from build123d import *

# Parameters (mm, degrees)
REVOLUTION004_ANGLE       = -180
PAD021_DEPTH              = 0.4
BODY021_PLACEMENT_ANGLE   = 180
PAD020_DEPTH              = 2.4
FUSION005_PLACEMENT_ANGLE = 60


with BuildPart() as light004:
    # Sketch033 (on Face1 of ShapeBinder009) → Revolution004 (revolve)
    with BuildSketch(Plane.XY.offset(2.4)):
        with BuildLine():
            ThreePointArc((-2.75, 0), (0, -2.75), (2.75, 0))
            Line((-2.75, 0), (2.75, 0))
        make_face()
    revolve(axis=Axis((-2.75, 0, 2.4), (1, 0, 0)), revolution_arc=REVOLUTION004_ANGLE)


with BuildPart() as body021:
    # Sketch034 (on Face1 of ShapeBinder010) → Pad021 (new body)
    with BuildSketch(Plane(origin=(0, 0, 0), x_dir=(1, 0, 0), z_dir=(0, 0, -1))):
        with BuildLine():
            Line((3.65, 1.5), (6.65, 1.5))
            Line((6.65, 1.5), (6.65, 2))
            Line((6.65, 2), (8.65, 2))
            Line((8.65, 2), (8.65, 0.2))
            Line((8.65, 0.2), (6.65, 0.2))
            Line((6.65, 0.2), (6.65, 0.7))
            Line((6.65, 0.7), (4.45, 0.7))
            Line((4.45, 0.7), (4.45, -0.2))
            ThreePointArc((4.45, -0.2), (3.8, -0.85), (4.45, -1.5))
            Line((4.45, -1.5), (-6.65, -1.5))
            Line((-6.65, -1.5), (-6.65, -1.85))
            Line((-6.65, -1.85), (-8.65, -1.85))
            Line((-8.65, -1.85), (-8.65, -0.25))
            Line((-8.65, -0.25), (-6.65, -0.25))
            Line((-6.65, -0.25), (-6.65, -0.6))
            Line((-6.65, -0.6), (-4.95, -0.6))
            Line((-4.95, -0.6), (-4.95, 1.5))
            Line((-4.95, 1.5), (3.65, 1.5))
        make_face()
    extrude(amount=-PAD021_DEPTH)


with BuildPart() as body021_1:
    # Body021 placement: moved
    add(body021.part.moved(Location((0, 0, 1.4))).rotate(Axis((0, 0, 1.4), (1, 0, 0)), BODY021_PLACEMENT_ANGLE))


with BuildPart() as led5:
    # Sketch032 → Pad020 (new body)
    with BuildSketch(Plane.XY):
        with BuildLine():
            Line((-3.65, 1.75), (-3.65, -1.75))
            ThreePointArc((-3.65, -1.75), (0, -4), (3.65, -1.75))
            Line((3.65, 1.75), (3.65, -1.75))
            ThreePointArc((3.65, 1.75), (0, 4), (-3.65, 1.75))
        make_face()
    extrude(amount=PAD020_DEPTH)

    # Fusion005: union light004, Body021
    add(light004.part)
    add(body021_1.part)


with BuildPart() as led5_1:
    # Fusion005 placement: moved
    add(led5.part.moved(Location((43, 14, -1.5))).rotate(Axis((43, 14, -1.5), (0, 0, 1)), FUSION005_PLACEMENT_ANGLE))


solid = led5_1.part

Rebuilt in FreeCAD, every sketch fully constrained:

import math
import FreeCAD as App
import Part
import Sketcher
from FreeCAD import Vector
Q = App.Units.Quantity

doc = App.newDocument("Part")
body = doc.addObject("PartDesign::Body", "Body")

# Sketch on XY plane
sketch1 = body.newObject("Sketcher::SketchObject", "Sketch")
sketch1.AttachmentSupport = (doc.getObject("XY_Plane"), [""])
sketch1.MapMode = "FlatFace"
sketch1.AttachmentOffset = App.Placement(Vector(0, 0, 2.4), App.Rotation())
sketch1.addGeometry([
    Part.ArcOfCircle(Part.Circle(Vector(0, 0, 0), Vector(0, 0, 1), 2.8), math.radians(180), math.radians(360)),
    Part.LineSegment(Vector(2.8, 0, 0), Vector(-2.8, 0, 0)),
], False)
sketch1.addConstraint([
    Sketcher.Constraint("Coincident", 0, 1, 1, 2),
    Sketcher.Constraint("Coincident", 1, 1, 0, 2),
    Sketcher.Constraint("Horizontal", 1),
    Sketcher.Constraint("Coincident", 0, 3, -1, 1),
    Sketcher.Constraint("PointOnObject", 0, 1, -1),
    Sketcher.Constraint("Radius", 0, Q("2.75 mm")),
])
revolution = body.newObject("PartDesign::Revolution", "Revolution")
revolution.Profile = sketch1
revolution.ReferenceAxis = (sketch1, ["H_Axis"])
revolution.Angle = 180
revolution.Reversed = True
body2 = doc.addObject("PartDesign::Body", "Body001")

# Sketch on XY plane
sketch2 = body2.newObject("Sketcher::SketchObject", "Sketch001")
sketch2.AttachmentSupport = (doc.getObject("XY_Plane001"), [""])
sketch2.MapMode = "FlatFace"
sketch2.addGeometry([
    Part.LineSegment(Vector(6.65, -2, 0), Vector(6.65, -1.5, 0)),  # 0
    Part.LineSegment(Vector(6.65, -1.5, 0), Vector(-4.95, -1.5, 0)),  # 1
    Part.LineSegment(Vector(-4.95, -1.5, 0), Vector(-4.95, 0.6, 0)),  # 2
    Part.LineSegment(Vector(-4.95, 0.6, 0), Vector(-6.65, 0.6, 0)),  # 3
    Part.LineSegment(Vector(-6.65, 0.6, 0), Vector(-6.65, 0.25, 0)),  # 4
    Part.LineSegment(Vector(-6.65, 0.25, 0), Vector(-8.65, 0.25, 0)),  # 5
    Part.LineSegment(Vector(-8.65, 0.25, 0), Vector(-8.65, 1.85, 0)),  # 6
    Part.LineSegment(Vector(-8.65, 1.85, 0), Vector(-6.65, 1.85, 0)),  # 7
    Part.LineSegment(Vector(-6.65, 1.85, 0), Vector(-6.65, 1.5, 0)),  # 8
    Part.LineSegment(Vector(-6.65, 1.5, 0), Vector(4.45, 1.5, 0)),  # 9
    Part.ArcOfCircle(Part.Circle(Vector(4.45, 0.85, 0), Vector(0, 0, 1), 0.65), math.radians(90), math.radians(270)),  # 10
    Part.LineSegment(Vector(4.45, 0.2, 0), Vector(4.45, -0.7, 0)),  # 11
    Part.LineSegment(Vector(4.45, -0.7, 0), Vector(6.65, -0.7, 0)),  # 12
    Part.LineSegment(Vector(6.65, -0.7, 0), Vector(6.65, -0.2, 0)),  # 13
    Part.LineSegment(Vector(6.65, -0.2, 0), Vector(8.65, -0.2, 0)),  # 14
    Part.LineSegment(Vector(8.65, -0.2, 0), Vector(8.65, -2, 0)),  # 15
    Part.LineSegment(Vector(8.65, -2, 0), Vector(6.65, -2, 0)),  # 16
], False)
sketch2.addConstraint([
    Sketcher.Constraint("Coincident", 0, 2, 1, 1),
    Sketcher.Constraint("Coincident", 1, 2, 2, 1),
    Sketcher.Constraint("Coincident", 2, 2, 3, 1),
    Sketcher.Constraint("Coincident", 3, 2, 4, 1),
    Sketcher.Constraint("Coincident", 4, 2, 5, 1),
    Sketcher.Constraint("Coincident", 5, 2, 6, 1),
    Sketcher.Constraint("Coincident", 6, 2, 7, 1),
    Sketcher.Constraint("Coincident", 7, 2, 8, 1),
    Sketcher.Constraint("Coincident", 8, 2, 9, 1),
    Sketcher.Constraint("Tangent", 9, 2, 10, 1),
    Sketcher.Constraint("Coincident", 10, 2, 11, 1),
    Sketcher.Constraint("Coincident", 11, 2, 12, 1),
    Sketcher.Constraint("Coincident", 12, 2, 13, 1),
    Sketcher.Constraint("Coincident", 13, 2, 14, 1),
    Sketcher.Constraint("Coincident", 14, 2, 15, 1),
    Sketcher.Constraint("Coincident", 15, 2, 16, 1),
    Sketcher.Constraint("Coincident", 16, 2, 0, 1),
    Sketcher.Constraint("Vertical", 0),
    Sketcher.Constraint("Horizontal", 1),
    Sketcher.Constraint("Vertical", 2),
    Sketcher.Constraint("Horizontal", 3),
    Sketcher.Constraint("Vertical", 4),
    Sketcher.Constraint("Horizontal", 5),
    Sketcher.Constraint("Vertical", 6),
    Sketcher.Constraint("Horizontal", 7),
    Sketcher.Constraint("Vertical", 8),
    Sketcher.Constraint("Horizontal", 9),
    Sketcher.Constraint("Vertical", 11),
    Sketcher.Constraint("Horizontal", 12),
    Sketcher.Constraint("Vertical", 13),
    Sketcher.Constraint("Horizontal", 14),
    Sketcher.Constraint("Vertical", 15),
    Sketcher.Constraint("Horizontal", 16),
    Sketcher.Constraint("Symmetric", 0, 2, 8, 2, -1, 1),
    Sketcher.Constraint("Vertical", 4, 2, 7, 2),
    Sketcher.Constraint("Vertical", 9, 2, 10, 2),
    Sketcher.Constraint("Vertical", 0, 2, 12, 2),
    Sketcher.Constraint("Equal", 7, 14),
    Sketcher.Constraint("Equal", 4, 8),
    Sketcher.Constraint("Equal", 0, 13),
    Sketcher.Constraint("DistanceX", 5, 2, 5, 1, Q("2 mm")),
    Sketcher.Constraint("Radius", 10, Q("0.65 mm")),
    Sketcher.Constraint("DistanceX", 1, 2, 1, 1, Q("11.6 mm")),
    Sketcher.Constraint("DistanceX", 3, 2, 3, 1, Q("1.7 mm")),
    Sketcher.Constraint("DistanceX", 9, 1, 9, 2, Q("11.1 mm")),
    Sketcher.Constraint("DistanceY", 0, 1, 0, 2, Q("0.5 mm")),
    Sketcher.Constraint("DistanceY", 2, 1, 2, 2, Q("2.1 mm")),
    Sketcher.Constraint("DistanceY", 6, 1, 6, 2, Q("1.6 mm")),
    Sketcher.Constraint("DistanceY", 11, 2, 11, 1, Q("0.9 mm")),
    Sketcher.Constraint("DistanceY", 15, 2, 15, 1, Q("1.8 mm")),
])
pad1 = body2.newObject("PartDesign::Pad", "Pad")
pad1.Profile = sketch2
pad1.Length = 0.4
body3 = doc.addObject("PartDesign::Body", "Body002")
doc.recompute()

body2.Placement = App.Placement(Vector(0, 0, 1.4), App.Rotation(Vector(1, 0, 0), 180))
boolean = body3.newObject("PartDesign::Boolean", "Boolean")
boolean.Type = "Fuse"
boolean.addObjects([body2])
body4 = doc.addObject("PartDesign::Body", "Body003")

# Sketch on XY plane
sketch3 = body4.newObject("Sketcher::SketchObject", "Sketch002")
sketch3.AttachmentSupport = (doc.getObject("XY_Plane003"), [""])
sketch3.MapMode = "FlatFace"
sketch3.addGeometry([
    Part.LineSegment(Vector(-3.6, 1.8, 0), Vector(-3.6, -1.8, 0)),
    Part.ArcOfCircle(Part.Circle(Vector(0, 0.1, 0), Vector(0, 0, 1), 4.1), math.radians(-153), math.radians(-27)),
    Part.LineSegment(Vector(3.6, -1.8, 0), Vector(3.6, 1.8, 0)),
    Part.ArcOfCircle(Part.Circle(Vector(0, -0.1, 0), Vector(0, 0, 1), 4.1), math.radians(27), math.radians(153)),
], False)
sketch3.addConstraint([
    Sketcher.Constraint("Coincident", 0, 2, 1, 1),
    Sketcher.Constraint("Coincident", 1, 2, 2, 1),
    Sketcher.Constraint("Coincident", 2, 2, 3, 1),
    Sketcher.Constraint("Coincident", 3, 2, 0, 1),
    Sketcher.Constraint("Vertical", 0),
    Sketcher.Constraint("Vertical", 2),
    Sketcher.Constraint("Equal", 1, 3),
    Sketcher.Constraint("Symmetric", 1, 3, 3, 3, -1, 1),
    Sketcher.Constraint("Symmetric", 0, 2, 1, 2, -2),
    Sketcher.Constraint("DistanceY", 0, 2, 0, 1, Q("3.5 mm")),
    Sketcher.Constraint("DistanceX", 0, 2, 1, 2, Q("7.3 mm")),
    Sketcher.Constraint("Radius", 1, Q("4.085556 mm")),
])
pad2 = body4.newObject("PartDesign::Pad", "Pad001")
pad2.Profile = sketch3
pad2.Length = 2.4
doc.recompute()

boolean2 = body4.newObject("PartDesign::Boolean", "Boolean001")
boolean2.Type = "Fuse"
boolean2.addObjects([body])
doc.recompute()

boolean3 = body4.newObject("PartDesign::Boolean", "Boolean002")
boolean3.Type = "Fuse"
boolean3.addObjects([body3])
body5 = doc.addObject("PartDesign::Body", "Body004")
doc.recompute()

body4.Placement = App.Placement(Vector(43, 14, -1.5), App.Rotation(Vector(0, 0, 1), 60))
boolean4 = body5.newObject("PartDesign::Boolean", "Boolean003")
boolean4.Type = "Fuse"
boolean4.addObjects([body4])

doc.recompute()
